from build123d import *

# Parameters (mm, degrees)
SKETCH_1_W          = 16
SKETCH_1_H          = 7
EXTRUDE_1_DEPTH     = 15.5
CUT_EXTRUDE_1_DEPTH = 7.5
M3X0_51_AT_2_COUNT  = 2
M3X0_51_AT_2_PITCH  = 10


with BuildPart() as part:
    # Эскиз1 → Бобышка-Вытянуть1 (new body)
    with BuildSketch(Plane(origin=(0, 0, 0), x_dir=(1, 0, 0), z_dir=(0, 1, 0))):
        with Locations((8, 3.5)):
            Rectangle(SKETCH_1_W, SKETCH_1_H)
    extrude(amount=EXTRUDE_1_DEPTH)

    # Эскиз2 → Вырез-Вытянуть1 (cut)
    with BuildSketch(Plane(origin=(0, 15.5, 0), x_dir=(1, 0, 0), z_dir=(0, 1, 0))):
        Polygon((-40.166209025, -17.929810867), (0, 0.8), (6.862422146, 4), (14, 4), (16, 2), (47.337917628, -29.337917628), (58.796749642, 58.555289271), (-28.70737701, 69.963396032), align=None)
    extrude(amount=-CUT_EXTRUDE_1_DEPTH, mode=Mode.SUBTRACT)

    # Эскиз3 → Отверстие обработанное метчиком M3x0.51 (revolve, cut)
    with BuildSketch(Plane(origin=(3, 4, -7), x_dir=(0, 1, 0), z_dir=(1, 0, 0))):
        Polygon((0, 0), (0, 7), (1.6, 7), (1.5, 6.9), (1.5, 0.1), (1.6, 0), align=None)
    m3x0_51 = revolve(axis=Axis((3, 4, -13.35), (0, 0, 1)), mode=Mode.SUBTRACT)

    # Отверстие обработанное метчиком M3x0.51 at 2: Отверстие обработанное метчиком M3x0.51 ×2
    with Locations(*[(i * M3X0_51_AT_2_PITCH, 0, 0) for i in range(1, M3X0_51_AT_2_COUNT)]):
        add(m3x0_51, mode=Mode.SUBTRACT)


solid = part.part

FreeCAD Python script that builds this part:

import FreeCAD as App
import Part
import Sketcher
Q = App.Units.Quantity


def add_polygon(sketch, points):
    """Adds a closed chain of lines whose ends are joined by coincident constraints."""
    first, n = sketch.GeometryCount, len(points)
    for a, b in zip(points, points[1:] + points[:1]):
        sketch.addGeometry(Part.LineSegment(App.Vector(*a, 0), App.Vector(*b, 0)), False)
    for i in range(n):
        sketch.addConstraint(Sketcher.Constraint("Coincident", first + i, 2, first + (i + 1) % n, 1))

doc = App.newDocument("Part")
body = doc.addObject("PartDesign::Body", "Body")

sketch1 = doc.addObject("Sketcher::SketchObject", "Sketch")
body.addObject(sketch1)
sketch1.AttachmentSupport = (doc.XZ_Plane, [""])
sketch1.MapMode = "FlatFace"
add_polygon(sketch1, [(0, -7), (0, 0), (16, 0), (16, -7)])
sketch1.addConstraint(Sketcher.Constraint("Vertical", 0))
sketch1.addConstraint(Sketcher.Constraint("Horizontal", 1))
sketch1.addConstraint(Sketcher.Constraint("Vertical", 2))
sketch1.addConstraint(Sketcher.Constraint("Horizontal", 3))
sketch1.addConstraint(Sketcher.Constraint("Coincident", 0, 2, -1, 1))
sketch1.addConstraint(Sketcher.Constraint("DistanceX", 1, 1, 1, 2, Q("16 mm")))
sketch1.addConstraint(Sketcher.Constraint("DistanceY", 0, 1, 0, 2, Q("7 mm")))
pad1 = doc.addObject("PartDesign::Pad", "Pad")
body.addObject(pad1)
pad1.Profile = sketch1
pad1.Length = 15.5
pad1.Reversed = True

sketch2 = doc.addObject("Sketcher::SketchObject", "Sketch001")
body.addObject(sketch2)
sketch2.AttachmentSupport = (doc.XZ_Plane, [""])
sketch2.MapMode = "FlatFace"
sketch2.AttachmentOffset = App.Placement(App.Vector(0, 0, -15.5), App.Rotation())
add_polygon(sketch2, [(-40.166209, 17.929811), (0, -0.8), (6.862422, -4), (14, -4), (47.337918, 29.337918), (58.79675, -58.555289), (-28.707377, -69.963396)])
sketch2.addConstraint(Sketcher.Constraint("Horizontal", 2))
sketch2.addConstraint(Sketcher.Constraint("PointOnObject", 0, 2, -2))
sketch2.addConstraint(Sketcher.Constraint("Parallel", 0, 1))
sketch2.addConstraint(Sketcher.Constraint("Perpendicular", 4, 5))
sketch2.addConstraint(Sketcher.Constraint("Perpendicular", 5, 6))
sketch2.addConstraint(Sketcher.Constraint("Equal", 4, 6))
sketch2.addConstraint(Sketcher.Constraint("Angle", 0, Q("-25 deg")))
sketch2.addConstraint(Sketcher.Constraint("Angle", 3, Q("45 deg")))
sketch2.addConstraint(Sketcher.Constraint("DistanceY", 1, 2, -1, 1, Q("4 mm")))
sketch2.addConstraint(Sketcher.Constraint("DistanceX", -1, 1, 2, 2, Q("14 mm")))
sketch2.addConstraint(Sketcher.Constraint("DistanceY", 0, 2, -1, 1, Q("0.8 mm")))
sketch2.addConstraint(Sketcher.Constraint("DistanceX", 5, 2, 1, 2, Q("35.569799 mm")))
sketch2.addConstraint(Sketcher.Constraint("Distance", 0, Q("44.318508 mm")))
sketch2.addConstraint(Sketcher.Constraint("DistanceX", -1, 1, 4, 2, Q("58.79675 mm")))
pocket1 = doc.addObject("PartDesign::Pocket", "Pocket")
body.addObject(pocket1)
pocket1.Profile = sketch2
pocket1.Length = 7.5
pocket1.Reversed = True

sketch3 = doc.addObject("Sketcher::SketchObject", "Sketch002")
body.addObject(sketch3)
sketch3.AttachmentSupport = (doc.YZ_Plane, [""])
sketch3.MapMode = "FlatFace"
sketch3.AttachmentOffset = App.Placement(App.Vector(0, 0, 3), App.Rotation())
add_polygon(sketch3, [(4, 0), (4, -7), (5.6, -7), (5.5, -6.9), (5.5, -0.1), (5.6, 0)])
sketch3.addGeometry(Part.LineSegment(App.Vector(4, -7, 0), App.Vector(4, 0, 0)), True)
sketch3.addConstraint(Sketcher.Constraint("Vertical", 0))
sketch3.addConstraint(Sketcher.Constraint("Horizontal", 1))
sketch3.addConstraint(Sketcher.Constraint("Vertical", 3))
sketch3.addConstraint(Sketcher.Constraint("Horizontal", 5))
sketch3.addConstraint(Sketcher.Constraint("Vertical", 6))
sketch3.addConstraint(Sketcher.Constraint("Coincident", 6, 1, 0, 2))
sketch3.addConstraint(Sketcher.Constraint("PointOnObject", 4, 2, -1))
sketch3.addConstraint(Sketcher.Constraint("PointOnObject", 6, 2, -1))
sketch3.addConstraint(Sketcher.Constraint("Perpendicular", 2, 4))
sketch3.addConstraint(Sketcher.Constraint("Vertical", 1, 2, 4, 2))
sketch3.addConstraint(Sketcher.Constraint("Equal", 2, 4))
sketch3.addConstraint(Sketcher.Constraint("DistanceY", 0, 2, 0, 1, Q("7 mm")))
sketch3.addConstraint(Sketcher.Constraint("DistanceX", 1, 1, 1, 2, Q("1.6 mm")))
sketch3.addConstraint(Sketcher.Constraint("DistanceY", 3, 1, 3, 2, Q("6.8 mm")))
sketch3.addConstraint(Sketcher.Constraint("DistanceX", -1, 1, 0, 2, Q("4 mm")))
groove = doc.addObject("PartDesign::Groove", "Groove")
body.addObject(groove)
groove.Profile = sketch3
groove.ReferenceAxis = (sketch3, ["Axis0"])
groove.Angle = 360
doc.recompute()

linearpattern = doc.addObject("PartDesign::LinearPattern", "LinearPattern")
body.addObject(linearpattern)
linearpattern.Originals = [groove]
linearpattern.Direction = (doc.X_Axis, [""])
linearpattern.Mode = "offset"
linearpattern.Offset = 10
linearpattern.Occurrences = 2
body.Tip = linearpattern

doc.recompute()
